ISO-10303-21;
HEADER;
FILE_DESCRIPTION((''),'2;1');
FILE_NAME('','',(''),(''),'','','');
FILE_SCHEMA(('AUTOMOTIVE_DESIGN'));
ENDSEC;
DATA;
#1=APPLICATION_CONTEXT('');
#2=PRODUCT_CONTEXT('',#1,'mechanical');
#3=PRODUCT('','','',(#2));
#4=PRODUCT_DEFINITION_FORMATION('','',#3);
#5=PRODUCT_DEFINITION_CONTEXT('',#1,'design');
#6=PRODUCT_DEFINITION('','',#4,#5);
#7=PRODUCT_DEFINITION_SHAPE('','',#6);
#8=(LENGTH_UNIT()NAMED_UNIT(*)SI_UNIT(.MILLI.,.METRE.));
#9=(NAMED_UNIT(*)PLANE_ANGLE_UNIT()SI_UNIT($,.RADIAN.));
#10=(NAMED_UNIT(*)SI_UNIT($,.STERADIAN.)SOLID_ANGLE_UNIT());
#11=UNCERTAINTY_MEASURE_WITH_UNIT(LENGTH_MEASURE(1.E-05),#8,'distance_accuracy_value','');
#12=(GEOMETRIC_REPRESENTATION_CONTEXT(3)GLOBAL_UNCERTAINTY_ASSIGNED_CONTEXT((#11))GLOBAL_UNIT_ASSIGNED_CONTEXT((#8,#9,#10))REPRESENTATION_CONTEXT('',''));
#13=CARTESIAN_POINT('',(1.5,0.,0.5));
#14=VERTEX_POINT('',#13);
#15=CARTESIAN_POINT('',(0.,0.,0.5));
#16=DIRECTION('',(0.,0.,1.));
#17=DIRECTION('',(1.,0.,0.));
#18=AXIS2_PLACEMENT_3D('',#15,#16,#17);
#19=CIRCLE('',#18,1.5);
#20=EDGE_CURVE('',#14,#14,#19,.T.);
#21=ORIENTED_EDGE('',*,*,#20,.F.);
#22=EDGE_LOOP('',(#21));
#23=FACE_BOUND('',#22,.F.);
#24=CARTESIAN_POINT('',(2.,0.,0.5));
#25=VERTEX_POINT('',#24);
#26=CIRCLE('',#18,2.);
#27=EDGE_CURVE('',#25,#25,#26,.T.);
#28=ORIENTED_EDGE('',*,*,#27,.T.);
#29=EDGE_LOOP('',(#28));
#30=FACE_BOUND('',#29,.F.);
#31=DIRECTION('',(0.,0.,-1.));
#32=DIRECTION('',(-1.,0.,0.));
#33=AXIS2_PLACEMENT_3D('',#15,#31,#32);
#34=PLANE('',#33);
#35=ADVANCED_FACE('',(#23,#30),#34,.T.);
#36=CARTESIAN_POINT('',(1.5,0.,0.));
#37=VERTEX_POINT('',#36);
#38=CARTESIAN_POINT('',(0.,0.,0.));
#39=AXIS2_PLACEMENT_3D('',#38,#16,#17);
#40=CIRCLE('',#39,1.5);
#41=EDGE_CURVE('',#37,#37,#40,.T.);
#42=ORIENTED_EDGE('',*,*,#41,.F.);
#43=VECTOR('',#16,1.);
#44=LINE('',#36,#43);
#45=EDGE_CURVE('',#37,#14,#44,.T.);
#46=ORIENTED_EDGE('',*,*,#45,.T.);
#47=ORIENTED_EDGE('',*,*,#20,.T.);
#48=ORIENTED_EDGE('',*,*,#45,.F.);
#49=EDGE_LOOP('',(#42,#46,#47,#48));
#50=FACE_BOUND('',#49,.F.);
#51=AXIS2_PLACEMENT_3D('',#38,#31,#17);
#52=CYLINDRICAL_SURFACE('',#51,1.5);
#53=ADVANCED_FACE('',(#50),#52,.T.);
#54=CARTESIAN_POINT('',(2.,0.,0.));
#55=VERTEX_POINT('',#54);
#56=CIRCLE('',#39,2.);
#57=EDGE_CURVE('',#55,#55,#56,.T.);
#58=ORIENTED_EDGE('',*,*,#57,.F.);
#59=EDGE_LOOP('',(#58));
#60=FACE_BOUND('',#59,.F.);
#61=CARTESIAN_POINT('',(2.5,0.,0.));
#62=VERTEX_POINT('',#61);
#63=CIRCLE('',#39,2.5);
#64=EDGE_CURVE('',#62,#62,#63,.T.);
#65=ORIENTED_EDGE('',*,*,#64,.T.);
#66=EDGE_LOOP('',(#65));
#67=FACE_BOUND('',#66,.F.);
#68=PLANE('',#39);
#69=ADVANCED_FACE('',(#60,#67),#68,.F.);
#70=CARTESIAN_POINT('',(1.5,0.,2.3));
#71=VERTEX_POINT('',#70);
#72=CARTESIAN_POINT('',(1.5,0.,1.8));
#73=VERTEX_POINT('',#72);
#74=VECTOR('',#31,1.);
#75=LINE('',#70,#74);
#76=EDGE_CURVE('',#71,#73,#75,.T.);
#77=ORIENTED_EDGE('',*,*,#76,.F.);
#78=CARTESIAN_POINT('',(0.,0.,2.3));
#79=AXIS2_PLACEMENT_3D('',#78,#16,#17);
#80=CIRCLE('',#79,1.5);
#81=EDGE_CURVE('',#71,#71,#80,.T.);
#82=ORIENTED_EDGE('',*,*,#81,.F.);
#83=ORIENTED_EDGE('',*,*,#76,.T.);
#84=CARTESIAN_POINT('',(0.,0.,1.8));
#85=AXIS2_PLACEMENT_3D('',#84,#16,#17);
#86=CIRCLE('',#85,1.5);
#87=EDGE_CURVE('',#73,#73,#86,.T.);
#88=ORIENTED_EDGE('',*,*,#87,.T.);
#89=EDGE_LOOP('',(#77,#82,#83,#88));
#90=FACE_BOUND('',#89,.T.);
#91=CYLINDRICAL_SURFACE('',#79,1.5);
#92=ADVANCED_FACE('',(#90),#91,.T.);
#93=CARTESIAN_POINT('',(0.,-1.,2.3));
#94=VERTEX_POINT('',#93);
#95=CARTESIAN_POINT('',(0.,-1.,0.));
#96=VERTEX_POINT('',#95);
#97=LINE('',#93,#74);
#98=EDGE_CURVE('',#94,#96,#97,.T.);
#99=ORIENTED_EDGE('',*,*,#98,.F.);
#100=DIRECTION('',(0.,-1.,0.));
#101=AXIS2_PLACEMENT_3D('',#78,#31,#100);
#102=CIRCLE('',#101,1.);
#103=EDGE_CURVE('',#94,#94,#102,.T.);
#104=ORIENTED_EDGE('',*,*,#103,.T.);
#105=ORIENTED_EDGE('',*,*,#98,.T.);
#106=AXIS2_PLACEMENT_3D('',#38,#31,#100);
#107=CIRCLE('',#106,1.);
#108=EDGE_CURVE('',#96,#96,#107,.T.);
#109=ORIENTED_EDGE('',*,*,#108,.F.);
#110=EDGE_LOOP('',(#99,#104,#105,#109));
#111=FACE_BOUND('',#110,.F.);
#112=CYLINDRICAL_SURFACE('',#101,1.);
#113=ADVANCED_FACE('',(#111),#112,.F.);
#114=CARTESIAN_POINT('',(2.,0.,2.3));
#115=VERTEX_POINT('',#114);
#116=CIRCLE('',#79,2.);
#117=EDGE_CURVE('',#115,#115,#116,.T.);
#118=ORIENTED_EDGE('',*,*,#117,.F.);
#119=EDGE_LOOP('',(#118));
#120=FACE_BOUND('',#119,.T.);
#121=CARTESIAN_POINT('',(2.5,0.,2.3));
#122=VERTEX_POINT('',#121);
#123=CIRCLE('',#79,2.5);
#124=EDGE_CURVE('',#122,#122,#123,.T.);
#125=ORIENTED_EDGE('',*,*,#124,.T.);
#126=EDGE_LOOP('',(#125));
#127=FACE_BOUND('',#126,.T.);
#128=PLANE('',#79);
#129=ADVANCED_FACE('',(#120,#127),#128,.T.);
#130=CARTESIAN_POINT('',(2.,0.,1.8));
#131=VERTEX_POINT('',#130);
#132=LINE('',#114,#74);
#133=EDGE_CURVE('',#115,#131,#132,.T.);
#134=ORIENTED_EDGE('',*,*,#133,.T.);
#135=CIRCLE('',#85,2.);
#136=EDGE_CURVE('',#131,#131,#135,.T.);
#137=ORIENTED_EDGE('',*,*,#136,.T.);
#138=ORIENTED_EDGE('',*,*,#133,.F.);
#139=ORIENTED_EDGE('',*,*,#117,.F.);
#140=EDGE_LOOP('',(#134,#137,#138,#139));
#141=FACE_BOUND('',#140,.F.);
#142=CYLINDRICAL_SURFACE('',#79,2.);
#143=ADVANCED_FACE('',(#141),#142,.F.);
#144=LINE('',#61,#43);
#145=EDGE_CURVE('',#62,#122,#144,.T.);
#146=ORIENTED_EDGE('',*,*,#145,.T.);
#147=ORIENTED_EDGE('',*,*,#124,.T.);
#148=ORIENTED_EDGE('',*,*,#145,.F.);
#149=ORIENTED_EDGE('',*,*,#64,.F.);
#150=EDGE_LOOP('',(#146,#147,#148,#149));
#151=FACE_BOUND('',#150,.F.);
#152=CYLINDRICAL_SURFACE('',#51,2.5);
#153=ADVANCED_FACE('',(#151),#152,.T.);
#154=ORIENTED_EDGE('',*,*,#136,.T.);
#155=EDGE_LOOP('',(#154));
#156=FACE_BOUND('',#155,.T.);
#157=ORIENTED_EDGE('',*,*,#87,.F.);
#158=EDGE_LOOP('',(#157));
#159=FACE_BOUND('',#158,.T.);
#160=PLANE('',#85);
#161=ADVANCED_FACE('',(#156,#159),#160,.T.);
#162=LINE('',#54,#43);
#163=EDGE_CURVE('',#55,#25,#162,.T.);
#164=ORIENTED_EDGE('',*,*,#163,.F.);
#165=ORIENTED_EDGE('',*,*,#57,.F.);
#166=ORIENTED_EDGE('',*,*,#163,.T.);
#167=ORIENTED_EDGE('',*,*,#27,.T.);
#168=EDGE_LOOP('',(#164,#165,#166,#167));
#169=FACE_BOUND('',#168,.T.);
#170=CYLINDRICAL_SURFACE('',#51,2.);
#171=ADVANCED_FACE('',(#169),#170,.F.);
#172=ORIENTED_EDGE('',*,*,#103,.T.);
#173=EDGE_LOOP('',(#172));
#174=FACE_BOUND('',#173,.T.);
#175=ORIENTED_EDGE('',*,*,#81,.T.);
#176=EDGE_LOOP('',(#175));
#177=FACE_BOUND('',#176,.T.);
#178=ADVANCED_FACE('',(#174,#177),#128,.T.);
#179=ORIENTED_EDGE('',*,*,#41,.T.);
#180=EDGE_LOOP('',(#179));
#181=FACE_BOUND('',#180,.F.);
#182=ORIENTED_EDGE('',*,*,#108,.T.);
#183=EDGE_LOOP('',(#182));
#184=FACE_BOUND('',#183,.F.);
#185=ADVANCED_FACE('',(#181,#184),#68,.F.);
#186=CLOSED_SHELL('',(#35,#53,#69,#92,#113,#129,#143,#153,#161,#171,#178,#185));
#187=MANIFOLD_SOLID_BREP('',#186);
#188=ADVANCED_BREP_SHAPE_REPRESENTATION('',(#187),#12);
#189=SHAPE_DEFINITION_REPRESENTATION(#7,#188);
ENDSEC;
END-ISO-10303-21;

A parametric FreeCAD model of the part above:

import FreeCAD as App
import Part
import Sketcher
Q = App.Units.Quantity

doc = App.newDocument("Part")
body = doc.addObject("PartDesign::Body", "Body")

sketch1 = body.newObject("Sketcher::SketchObject", "Sketch")
sketch1.AttachmentSupport = (doc.getObject("XY_Plane"), [""])
sketch1.MapMode = "FlatFace"
sketch1.addGeometry(Part.Circle(App.Vector(0, 0, 0), App.Vector(0, 0, 1), 2.5), False)
sketch1.addConstraint([
    Sketcher.Constraint("Coincident", 0, 3, -1, 1),
    Sketcher.Constraint("Diameter", 0, Q("5 mm")),
])
pad1 = body.newObject("PartDesign::Pad", "Pad")
pad1.Profile = sketch1
pad1.Length = 2.3

sketch2 = body.newObject("Sketcher::SketchObject", "Sketch001")
sketch2.AttachmentSupport = (doc.getObject("XY_Plane"), [""])
sketch2.MapMode = "FlatFace"
sketch2.AttachmentOffset = App.Placement(App.Vector(0, 0, 2.3), App.Rotation())
sketch2.addGeometry(Part.Circle(App.Vector(0, 0, 0), App.Vector(0, 0, 1), 1), False)
sketch2.addConstraint([
    Sketcher.Constraint("Coincident", 0, 3, -1, 1),
    Sketcher.Constraint("Diameter", 0, Q("2 mm")),
])
doc.recompute()
hole = body.newObject("PartDesign::Hole", "Hole")
hole.Profile = sketch2
hole.ThreadType = "None"
hole.Diameter = 2
hole.DepthType = "ThroughAll"

sketch3 = body.newObject("Sketcher::SketchObject", "Sketch002")
sketch3.AttachmentSupport = (doc.getObject("XY_Plane"), [""])
sketch3.MapMode = "FlatFace"
sketch3.AttachmentOffset = App.Placement(App.Vector(0, 0, 2.3), App.Rotation())
sketch3.addGeometry([
    Part.Circle(App.Vector(0, 0, 0), App.Vector(0, 0, 1), 2),
    Part.Circle(App.Vector(0, 0, 0), App.Vector(0, 0, 1), 1.5),
], False)
sketch3.addConstraint([
    Sketcher.Constraint("Coincident", 0, 3, -1, 1),
    Sketcher.Constraint("Coincident", 1, 3, -1, 1),
    Sketcher.Constraint("Diameter", 0, Q("4 mm")),
    Sketcher.Constraint("Diameter", 1, Q("3 mm")),
])
pocket1 = body.newObject("PartDesign::Pocket", "Pocket")
pocket1.Profile = sketch3
pocket1.Length = 0.5
doc.recompute()

datumplane = body.newObject("PartDesign::Plane", "DatumPlane")
datumplane.AttachmentSupport = (doc.getObject("XY_Plane"), [""])
datumplane.MapMode = "FlatFace"
datumplane.AttachmentOffset = App.Placement(App.Vector(0, 0, 1.15), App.Rotation())
mirrored = body.newObject("PartDesign::Mirrored", "Mirrored")
mirrored.Originals = [pocket1]
mirrored.MirrorPlane = (datumplane, [""])
body.Tip = mirrored

doc.recompute()
